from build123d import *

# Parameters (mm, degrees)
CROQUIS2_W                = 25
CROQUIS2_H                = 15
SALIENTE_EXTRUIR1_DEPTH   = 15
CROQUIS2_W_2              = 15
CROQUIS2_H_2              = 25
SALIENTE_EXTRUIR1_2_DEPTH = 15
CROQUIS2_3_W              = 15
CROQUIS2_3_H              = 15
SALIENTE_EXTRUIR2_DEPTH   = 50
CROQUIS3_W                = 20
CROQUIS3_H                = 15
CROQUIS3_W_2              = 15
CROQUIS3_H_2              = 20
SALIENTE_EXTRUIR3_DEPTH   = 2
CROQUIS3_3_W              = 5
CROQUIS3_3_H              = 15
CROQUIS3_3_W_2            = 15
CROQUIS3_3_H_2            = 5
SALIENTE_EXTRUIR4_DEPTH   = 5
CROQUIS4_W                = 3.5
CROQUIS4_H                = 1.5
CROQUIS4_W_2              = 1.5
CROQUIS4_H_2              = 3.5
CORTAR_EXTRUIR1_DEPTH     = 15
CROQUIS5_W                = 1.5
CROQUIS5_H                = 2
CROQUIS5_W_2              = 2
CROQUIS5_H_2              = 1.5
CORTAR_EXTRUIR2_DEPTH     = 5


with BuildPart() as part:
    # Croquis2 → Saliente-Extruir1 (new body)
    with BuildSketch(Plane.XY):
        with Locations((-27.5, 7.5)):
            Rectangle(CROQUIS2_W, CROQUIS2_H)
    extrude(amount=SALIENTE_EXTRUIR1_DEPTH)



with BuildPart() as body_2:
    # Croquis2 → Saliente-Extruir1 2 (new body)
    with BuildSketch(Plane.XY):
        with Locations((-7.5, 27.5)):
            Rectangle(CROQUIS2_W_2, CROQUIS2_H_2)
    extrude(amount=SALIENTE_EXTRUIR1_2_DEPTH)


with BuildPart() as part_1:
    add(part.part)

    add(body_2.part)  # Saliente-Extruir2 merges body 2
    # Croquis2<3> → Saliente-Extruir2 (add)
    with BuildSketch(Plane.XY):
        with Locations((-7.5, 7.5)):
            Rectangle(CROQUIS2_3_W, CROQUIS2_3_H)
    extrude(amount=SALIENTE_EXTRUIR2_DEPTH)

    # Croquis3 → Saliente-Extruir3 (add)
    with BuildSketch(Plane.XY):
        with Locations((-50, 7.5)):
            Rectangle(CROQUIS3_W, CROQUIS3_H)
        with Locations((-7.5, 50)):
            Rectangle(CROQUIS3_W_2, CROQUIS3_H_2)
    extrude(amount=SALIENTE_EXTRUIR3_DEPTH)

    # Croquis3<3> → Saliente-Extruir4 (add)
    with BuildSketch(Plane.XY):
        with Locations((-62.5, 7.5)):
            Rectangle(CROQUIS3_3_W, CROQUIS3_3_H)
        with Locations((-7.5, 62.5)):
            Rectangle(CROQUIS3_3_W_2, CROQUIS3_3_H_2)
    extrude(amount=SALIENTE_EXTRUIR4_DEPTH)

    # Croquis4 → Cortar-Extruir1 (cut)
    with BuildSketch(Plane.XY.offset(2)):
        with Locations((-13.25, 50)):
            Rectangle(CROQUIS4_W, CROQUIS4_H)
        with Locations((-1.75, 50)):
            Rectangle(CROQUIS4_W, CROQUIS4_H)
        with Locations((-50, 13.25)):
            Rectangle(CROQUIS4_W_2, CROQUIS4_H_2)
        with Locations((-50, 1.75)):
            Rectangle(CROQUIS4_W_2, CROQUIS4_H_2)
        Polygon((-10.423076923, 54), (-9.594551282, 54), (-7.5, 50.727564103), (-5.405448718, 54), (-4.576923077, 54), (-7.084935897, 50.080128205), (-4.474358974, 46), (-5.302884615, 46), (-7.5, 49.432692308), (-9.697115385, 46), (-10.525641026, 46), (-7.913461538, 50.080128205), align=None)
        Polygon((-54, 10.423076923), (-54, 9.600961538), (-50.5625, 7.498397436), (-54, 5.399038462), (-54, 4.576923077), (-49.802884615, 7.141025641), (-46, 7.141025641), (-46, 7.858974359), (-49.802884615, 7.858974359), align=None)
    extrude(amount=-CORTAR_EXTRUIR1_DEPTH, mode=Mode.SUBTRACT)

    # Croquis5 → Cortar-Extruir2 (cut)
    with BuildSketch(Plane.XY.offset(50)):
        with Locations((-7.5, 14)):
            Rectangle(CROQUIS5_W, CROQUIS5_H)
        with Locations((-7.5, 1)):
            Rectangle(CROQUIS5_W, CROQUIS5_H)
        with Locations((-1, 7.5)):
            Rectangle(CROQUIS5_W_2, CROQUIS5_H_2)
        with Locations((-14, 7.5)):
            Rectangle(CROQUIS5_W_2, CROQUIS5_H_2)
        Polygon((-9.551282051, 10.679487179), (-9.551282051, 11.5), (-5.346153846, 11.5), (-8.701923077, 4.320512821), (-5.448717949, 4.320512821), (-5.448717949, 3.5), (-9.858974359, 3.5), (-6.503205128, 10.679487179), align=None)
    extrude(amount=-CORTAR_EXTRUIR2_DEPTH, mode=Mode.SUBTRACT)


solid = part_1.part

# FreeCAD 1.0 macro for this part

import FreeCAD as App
import Part
import Sketcher

V = App.Vector


def add_polygon(sketch, points):
    """Adds a closed chain of lines whose ends are joined by coincident constraints."""
    first, n = sketch.GeometryCount, len(points)
    for a, b in zip(points, points[1:] + points[:1]):
        sketch.addGeometry(Part.LineSegment(App.Vector(*a, 0), App.Vector(*b, 0)), False)
    for i in range(n):
        sketch.addConstraint(Sketcher.Constraint("Coincident", first + i, 2, first + (i + 1) % n, 1))

doc = App.newDocument("Part")
body = doc.addObject("PartDesign::Body", "Body")

sketch1 = doc.addObject("Sketcher::SketchObject", "Sketch")
body.addObject(sketch1)
sketch1.AttachmentSupport = (doc.XY_Plane, [""])
sketch1.MapMode = "FlatFace"
add_polygon(sketch1, [(-40, 15), (-40, 0), (-15, 0), (-15, 15)])
sketch1.addConstraint([
    Sketcher.Constraint("Vertical", 0),
    Sketcher.Constraint("Horizontal", 1),
    Sketcher.Constraint("Vertical", 2),
    Sketcher.Constraint("Horizontal", 3),
    Sketcher.Constraint("PointOnObject", 0, 2, -1),
    Sketcher.Constraint("DistanceX", 1, 1, 1, 2, 25.0),
    Sketcher.Constraint("DistanceY", 0, 2, 0, 1, 15.0),
    Sketcher.Constraint("DistanceX", 0, 2, -1, 1, 40.0),
])
pad1 = doc.addObject("PartDesign::Pad", "Pad")
body.addObject(pad1)
pad1.Profile = sketch1
pad1.Length = 15
body2 = doc.addObject("PartDesign::Body", "Body001")

sketch2 = doc.addObject("Sketcher::SketchObject", "Sketch001")
body2.addObject(sketch2)
sketch2.AttachmentSupport = (doc.getObject("XY_Plane001"), [""])
sketch2.MapMode = "FlatFace"
add_polygon(sketch2, [(-15, 40), (-15, 15), (0, 15), (0, 40)])
sketch2.addConstraint([
    Sketcher.Constraint("Vertical", 0),
    Sketcher.Constraint("Horizontal", 1),
    Sketcher.Constraint("Vertical", 2),
    Sketcher.Constraint("Horizontal", 3),
    Sketcher.Constraint("PointOnObject", 1, 2, -2),
    Sketcher.Constraint("DistanceX", 1, 1, 1, 2, 15.0),
    Sketcher.Constraint("DistanceY", 0, 2, 0, 1, 25.0),
    Sketcher.Constraint("DistanceY", -1, 1, 0, 2, 15.0),
])
pad2 = doc.addObject("PartDesign::Pad", "Pad001")
body2.addObject(pad2)
pad2.Profile = sketch2
pad2.Length = 15
body.AllowCompound = True
doc.recompute()

boolean = doc.addObject("PartDesign::Boolean", "Boolean")
body.addObject(boolean)
boolean.Type = "Fuse"
boolean.addObjects([body2])

sketch3 = doc.addObject("Sketcher::SketchObject", "Sketch002")
body.addObject(sketch3)
sketch3.AttachmentSupport = (doc.XY_Plane, [""])
sketch3.MapMode = "FlatFace"
add_polygon(sketch3, [(-15, 15), (-15, 0), (0, 0), (0, 15)])
sketch3.addConstraint([
    Sketcher.Constraint("Vertical", 0),
    Sketcher.Constraint("Horizontal", 1),
    Sketcher.Constraint("Vertical", 2),
    Sketcher.Constraint("Horizontal", 3),
    Sketcher.Constraint("Coincident", 1, 2, -1, 1),
    Sketcher.Constraint("Equal", 3, 0),
    Sketcher.Constraint("DistanceX", 1, 1, 1, 2, 15.0),
])
pad3 = doc.addObject("PartDesign::Pad", "Pad002")
body.addObject(pad3)
pad3.Profile = sketch3
pad3.Length = 50

sketch4 = doc.addObject("Sketcher::SketchObject", "Sketch003")
body.addObject(sketch4)
sketch4.AttachmentSupport = (doc.XY_Plane, [""])
sketch4.MapMode = "FlatFace"
add_polygon(sketch4, [(-60, 15), (-60, 0), (-40, 0), (-40, 15)])
add_polygon(sketch4, [(-15, 60), (-15, 40), (0, 40), (0, 60)])
sketch4.addConstraint([
    Sketcher.Constraint("Vertical", 0),
    Sketcher.Constraint("Horizontal", 1),
    Sketcher.Constraint("Vertical", 2),
    Sketcher.Constraint("Horizontal", 3),
    Sketcher.Constraint("Vertical", 4),
    Sketcher.Constraint("Horizontal", 5),
    Sketcher.Constraint("Vertical", 6),
    Sketcher.Constraint("Horizontal", 7),
    Sketcher.Constraint("PointOnObject", 0, 2, -1),
    Sketcher.Constraint("PointOnObject", 5, 2, -2),
    Sketcher.Constraint("Equal", 7, 0),
    Sketcher.Constraint("Equal", 3, 4),
    Sketcher.Constraint("DistanceX", 1, 1, 1, 2, 20.0),
    Sketcher.Constraint("DistanceX", 5, 1, 5, 2, 15.0),
    Sketcher.Constraint("DistanceX", 0, 2, -1, 1, 60.0),
    Sketcher.Constraint("DistanceY", -1, 1, 4, 2, 40.0),
])
pad4 = doc.addObject("PartDesign::Pad", "Pad003")
body.addObject(pad4)
pad4.Profile = sketch4
pad4.Length = 2

sketch5 = doc.addObject("Sketcher::SketchObject", "Sketch004")
body.addObject(sketch5)
sketch5.AttachmentSupport = (doc.XY_Plane, [""])
sketch5.MapMode = "FlatFace"
add_polygon(sketch5, [(-65, 15), (-65, 0), (-60, 0), (-60, 15)])
add_polygon(sketch5, [(-15, 65), (-15, 60), (0, 60), (0, 65)])
sketch5.addConstraint([
    Sketcher.Constraint("Vertical", 0),
    Sketcher.Constraint("Horizontal", 1),
    Sketcher.Constraint("Vertical", 2),
    Sketcher.Constraint("Horizontal", 3),
    Sketcher.Constraint("Vertical", 4),
    Sketcher.Constraint("Horizontal", 5),
    Sketcher.Constraint("Vertical", 6),
    Sketcher.Constraint("Horizontal", 7),
    Sketcher.Constraint("PointOnObject", 0, 2, -1),
    Sketcher.Constraint("PointOnObject", 5, 2, -2),
    Sketcher.Constraint("Equal", 7, 0),
    Sketcher.Constraint("Equal", 3, 4),
    Sketcher.Constraint("DistanceX", 1, 1, 1, 2, 5.0),
    Sketcher.Constraint("DistanceX", 5, 1, 5, 2, 15.0),
    Sketcher.Constraint("DistanceX", 0, 2, -1, 1, 65.0),
    Sketcher.Constraint("DistanceY", -1, 1, 4, 2, 60.0),
])
pad5 = doc.addObject("PartDesign::Pad", "Pad004")
body.addObject(pad5)
pad5.Profile = sketch5
pad5.Length = 5

sketch6 = doc.addObject("Sketcher::SketchObject", "Sketch005")
body.addObject(sketch6)
sketch6.AttachmentSupport = (doc.XY_Plane, [""])
sketch6.MapMode = "FlatFace"
sketch6.AttachmentOffset = App.Placement(V(0, 0, 2), App.Rotation())
add_polygon(sketch6, [(-15, 50.8), (-15, 49.2), (-11.5, 49.2), (-11.5, 50.8)])
add_polygon(sketch6, [(-3.5, 50.8), (-3.5, 49.2), (0, 49.2), (0, 50.8)])
add_polygon(sketch6, [(-50.8, 15), (-50.8, 11.5), (-49.2, 11.5), (-49.2, 15)])
add_polygon(sketch6, [(-50.8, 3.5), (-50.8, 0), (-49.2, 0), (-49.2, 3.5)])
add_polygon(sketch6, [(-9.6, 54), (-10.4, 54), (-7.9, 50.1), (-10.5, 46), (-9.7, 46), (-7.5, 49.4), (-5.3, 46), (-4.5, 46), (-7.1, 50.1), (-4.6, 54), (-5.4, 54), (-7.5, 50.7)])
add_polygon(sketch6, [(-54, 10.4), (-54, 9.6), (-50.6, 7.5), (-54, 5.4), (-54, 4.6), (-49.8, 7.1), (-46, 7.1), (-46, 7.9), (-49.8, 7.9)])
sketch6.addConstraint([
    Sketcher.Constraint("Vertical", 0),
    Sketcher.Constraint("Horizontal", 1),
    Sketcher.Constraint("Vertical", 2),
    Sketcher.Constraint("Horizontal", 3),
    Sketcher.Constraint("Vertical", 4),
    Sketcher.Constraint("Horizontal", 5),
    Sketcher.Constraint("Vertical", 6),
    Sketcher.Constraint("Horizontal", 7),
    Sketcher.Constraint("Vertical", 8),
    Sketcher.Constraint("Horizontal", 9),
    Sketcher.Constraint("Vertical", 10),
    Sketcher.Constraint("Horizontal", 11),
    Sketcher.Constraint("Vertical", 12),
    Sketcher.Constraint("Horizontal", 13),
    Sketcher.Constraint("Vertical", 14),
    Sketcher.Constraint("Horizontal", 15),
    Sketcher.Constraint("Horizontal", 16),
    Sketcher.Constraint("Horizontal", 19),
    Sketcher.Constraint("Horizontal", 22),
    Sketcher.Constraint("Horizontal", 25),
    Sketcher.Constraint("Vertical", 28),
    Sketcher.Constraint("Vertical", 31),
    Sketcher.Constraint("Horizontal", 33),
    Sketcher.Constraint("Vertical", 34),
    Sketcher.Constraint("Horizontal", 35),
    Sketcher.Constraint("PointOnObject", 5, 2, -2),
    Sketcher.Constraint("PointOnObject", 12, 2, -1),
    Sketcher.Constraint("Parallel", 20, 26),
    Sketcher.Constraint("Parallel", 21, 27),
    Sketcher.Constraint("Horizontal", 1, 2, 4, 2),
    Sketcher.Constraint("Horizontal", 3, 2, 6, 2),
    Sketcher.Constraint("Horizontal", 19, 2, 21, 2),
    Sketcher.Constraint("Horizontal", 17, 2, 23, 2),
    Sketcher.Constraint("Horizontal", 16, 2, 24, 2),
    Sketcher.Constraint("Vertical", 11, 2, 12, 2),
    Sketcher.Constraint("Vertical", 10, 2, 13, 2),
    Sketcher.Constraint("Vertical", 20, 2, 26, 2),
    Sketcher.Constraint("Vertical", 28, 2, 30, 2),
    Sketcher.Constraint("Vertical", 32, 2, 35, 2),
    Sketcher.Constraint("Equal", 3, 5),
    Sketcher.Constraint("Equal", 16, 19),
    Sketcher.Constraint("Equal", 19, 22),
    Sketcher.Constraint("Equal", 22, 25),
    Sketcher.Constraint("Equal", 15, 0),
    Sketcher.Constraint("Equal", 7, 8),
    Sketcher.Constraint("Equal", 10, 12),
    Sketcher.Constraint("Equal", 28, 31),
    Sketcher.Constraint("Equal", 20, 21),
    Sketcher.Constraint("Equal", 32, 36),
    Sketcher.Constraint("DistanceX", 1, 1, 1, 2, 3.5),
    Sketcher.Constraint("DistanceX", 9, 1, 9, 2, 1.5),
    Sketcher.Constraint("DistanceX", 0, 2, -1, 1, 15.0),
    Sketcher.Constraint("DistanceY", -1, 1, 10, 2, 15.0),
    Sketcher.Constraint("DistanceY", -1, 1, 16, 2, 54.0),
    Sketcher.Constraint("DistanceY", -1, 1, 18, 2, 46.0),
    Sketcher.Constraint("DistanceX", 28, 2, -1, 1, 54.0),
    Sketcher.Constraint("DistanceX", 33, 2, -1, 1, 46.0),
    Sketcher.Constraint("DistanceX", 1, 2, 20, 2, 4.0),
    Sketcher.Constraint("DistanceY", -1, 1, 0, 2, 49.25),
    Sketcher.Constraint("DistanceX", 8, 2, -1, 1, 50.75),
    Sketcher.Constraint("DistanceY", 34, 1, 34, 2, 0.717949),
    Sketcher.Constraint("DistanceX", 29, 2, -1, 1, 50.5625),
    Sketcher.Constraint("Distance", 18, 4.84468),
    Sketcher.Constraint("Distance", 20, 4.075622),
    Sketcher.Constraint("Distance", 24, 4.65355),
    Sketcher.Constraint("Distance", 29, 4.029539),
    Sketcher.Constraint("DistanceX", 16, 2, 16, 1, 0.828526),
    Sketcher.Constraint("DistanceX", 33, 1, 33, 2, 3.802885),
    Sketcher.Constraint("DistanceY", 28, 2, 28, 1, 0.822115),
    Sketcher.Constraint("DistanceX", 17, 2, -1, 1, 7.913462),
    Sketcher.Constraint("DistanceY", -1, 1, 17, 2, 50.080128),
    Sketcher.Constraint("DistanceX", 25, 2, -1, 1, 5.405449),
    Sketcher.Constraint("DistanceY", -1, 1, 28, 2, 9.600962),
    Sketcher.Constraint("DistanceY", -1, 1, 30, 2, 5.399038),
])
pocket1 = doc.addObject("PartDesign::Pocket", "Pocket")
body.addObject(pocket1)
pocket1.Profile = sketch6
pocket1.Length = 15

sketch7 = doc.addObject("Sketcher::SketchObject", "Sketch006")
body.addObject(sketch7)
sketch7.AttachmentSupport = (doc.XY_Plane, [""])
sketch7.MapMode = "FlatFace"
sketch7.AttachmentOffset = App.Placement(V(0, 0, 50), App.Rotation())
add_polygon(sketch7, [(-8.2, 15), (-8.2, 13), (-6.8, 13), (-6.8, 15)])
add_polygon(sketch7, [(-8.2, 2), (-8.2, 0), (-6.8, 0), (-6.8, 2)])
add_polygon(sketch7, [(-2, 8.2), (-2, 6.8), (0, 6.8), (0, 8.2)])
add_polygon(sketch7, [(-15, 8.2), (-15, 6.8), (-13, 6.8), (-13, 8.2)])
add_polygon(sketch7, [(-9.6, 11.5), (-9.6, 10.7), (-6.5, 10.7), (-9.9, 3.5), (-5.4, 3.5), (-5.4, 4.3), (-8.7, 4.3), (-5.3, 11.5)])
sketch7.addConstraint([
    Sketcher.Constraint("Vertical", 0),
    Sketcher.Constraint("Horizontal", 1),
    Sketcher.Constraint("Vertical", 2),
    Sketcher.Constraint("Horizontal", 3),
    Sketcher.Constraint("Vertical", 4),
    Sketcher.Constraint("Horizontal", 5),
    Sketcher.Constraint("Vertical", 6),
    Sketcher.Constraint("Horizontal", 7),
    Sketcher.Constraint("Vertical", 8),
    Sketcher.Constraint("Horizontal", 9),
    Sketcher.Constraint("Vertical", 10),
    Sketcher.Constraint("Horizontal", 11),
    Sketcher.Constraint("Vertical", 12),
    Sketcher.Constraint("Horizontal", 13),
    Sketcher.Constraint("Vertical", 14),
    Sketcher.Constraint("Horizontal", 15),
    Sketcher.Constraint("Vertical", 16),
    Sketcher.Constraint("Horizontal", 17),
    Sketcher.Constraint("Horizontal", 19),
    Sketcher.Constraint("Vertical", 20),
    Sketcher.Constraint("Horizontal", 21),
    Sketcher.Constraint("Horizontal", 23),
    Sketcher.Constraint("PointOnObject", 4, 2, -1),
    Sketcher.Constraint("PointOnObject", 9, 2, -2),
    Sketcher.Constraint("Parallel", 18, 22),
    Sketcher.Constraint("Horizontal", 9, 2, 12, 2),
    Sketcher.Constraint("Horizontal", 11, 2, 14, 2),
    Sketcher.Constraint("Vertical", 3, 2, 4, 2),
    Sketcher.Constraint("Vertical", 2, 2, 5, 2),
    Sketcher.Constraint("Equal", 11, 13),
    Sketcher.Constraint("Equal", 15, 0),
    Sketcher.Constraint("Equal", 2, 4),
    Sketcher.Constraint("Equal", 7, 8),
    Sketcher.Constraint("Equal", 16, 20),
    Sketcher.Constraint("DistanceX", 9, 1, 9, 2, 2.0),
    Sketcher.Constraint("DistanceX", 1, 1, 1, 2, 1.5),
    Sketcher.Constraint("DistanceY", -1, 1, 0, 2, 13.0),
    Sketcher.Constraint("DistanceX", 12, 2, -1, 1, 15.0),
    Sketcher.Constraint("DistanceY", -1, 1, 18, 2, 3.5),
    Sketcher.Constraint("DistanceY", -1, 1, 22, 2, 11.5),
    Sketcher.Constraint("DistanceX", 0, 2, -1, 1, 8.25),
    Sketcher.Constraint("DistanceY", -1, 1, 8, 2, 6.75),
    Sketcher.Constraint("DistanceX", 23, 2, 23, 1, 4.205128),
    Sketcher.Constraint("DistanceX", 17, 1, 17, 2, 3.048077),
    Sketcher.Constraint("DistanceX", 19, 1, 19, 2, 4.410256),
    Sketcher.Constraint("DistanceY", 16, 2, 16, 1, 0.820513),
    Sketcher.Constraint("Distance", 18, 7.925038),
    Sketcher.Constraint("DistanceX", 16, 2, -1, 1, 9.551282),
])
pocket2 = doc.addObject("PartDesign::Pocket", "Pocket001")
body.addObject(pocket2)
pocket2.Profile = sketch7
pocket2.Length = 5

doc.recompute()
